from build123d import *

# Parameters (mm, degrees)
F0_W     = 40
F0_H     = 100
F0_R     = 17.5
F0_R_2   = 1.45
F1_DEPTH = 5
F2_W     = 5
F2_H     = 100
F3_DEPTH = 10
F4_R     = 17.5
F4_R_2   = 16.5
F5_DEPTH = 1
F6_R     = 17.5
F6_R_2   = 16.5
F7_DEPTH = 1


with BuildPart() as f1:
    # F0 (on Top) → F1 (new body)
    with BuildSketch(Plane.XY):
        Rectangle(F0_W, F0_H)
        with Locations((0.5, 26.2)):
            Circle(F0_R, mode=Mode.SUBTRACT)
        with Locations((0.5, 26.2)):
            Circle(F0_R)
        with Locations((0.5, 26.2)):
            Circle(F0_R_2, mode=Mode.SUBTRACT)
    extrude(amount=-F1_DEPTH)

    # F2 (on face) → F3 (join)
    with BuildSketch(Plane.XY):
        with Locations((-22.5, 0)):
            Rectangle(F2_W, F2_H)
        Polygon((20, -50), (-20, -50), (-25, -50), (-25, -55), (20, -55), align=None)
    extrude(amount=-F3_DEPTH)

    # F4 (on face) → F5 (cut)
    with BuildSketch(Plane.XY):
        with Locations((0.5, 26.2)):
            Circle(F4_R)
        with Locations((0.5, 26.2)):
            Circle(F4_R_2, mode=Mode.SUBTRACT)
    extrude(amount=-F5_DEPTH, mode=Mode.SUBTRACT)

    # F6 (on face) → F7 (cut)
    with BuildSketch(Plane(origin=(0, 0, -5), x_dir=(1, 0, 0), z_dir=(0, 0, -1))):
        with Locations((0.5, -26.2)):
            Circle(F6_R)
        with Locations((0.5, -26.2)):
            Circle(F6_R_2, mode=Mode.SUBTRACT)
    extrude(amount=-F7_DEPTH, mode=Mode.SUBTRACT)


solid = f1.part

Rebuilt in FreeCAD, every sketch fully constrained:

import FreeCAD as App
import Part
import Sketcher

V = App.Vector

doc = App.newDocument("Part")
body = doc.addObject("PartDesign::Body", "Body")

# Sketch on XY plane
sketch1 = body.newObject("Sketcher::SketchObject", "Sketch")
sketch1.AttachmentSupport = (doc.getObject("XY_Plane"), [""])
sketch1.MapMode = "FlatFace"
sketch1.addGeometry(Part.LineSegment(V(-20, 50, 0), V(-20, -50, 0)), False)
sketch1.addGeometry(Part.LineSegment(V(-20, -50, 0), V(20, -50, 0)), False)
sketch1.addGeometry(Part.LineSegment(V(20, -50, 0), V(20, 50, 0)), False)
sketch1.addGeometry(Part.LineSegment(V(20, 50, 0), V(-20, 50, 0)), False)
sketch1.addGeometry(Part.Circle(V(0.5, 26.2, 0), V(0, 0, 1), 1.45), False)
sketch1.addConstraint(Sketcher.Constraint("Coincident", 0, 2, 1, 1))
sketch1.addConstraint(Sketcher.Constraint("Coincident", 1, 2, 2, 1))
sketch1.addConstraint(Sketcher.Constraint("Coincident", 2, 2, 3, 1))
sketch1.addConstraint(Sketcher.Constraint("Coincident", 3, 2, 0, 1))
sketch1.addConstraint(Sketcher.Constraint("Vertical", 0))
sketch1.addConstraint(Sketcher.Constraint("Horizontal", 1))
sketch1.addConstraint(Sketcher.Constraint("Vertical", 2))
sketch1.addConstraint(Sketcher.Constraint("Horizontal", 3))
sketch1.addConstraint(Sketcher.Constraint("Symmetric", 0, 2, 2, 2, -1, 1))
sketch1.addConstraint(Sketcher.Constraint("Diameter", 4, 2.9))
sketch1.addConstraint(Sketcher.Constraint("DistanceX", 1, 1, 1, 2, 40.0))
sketch1.addConstraint(Sketcher.Constraint("DistanceY", 0, 2, 0, 1, 100.0))
sketch1.addConstraint(Sketcher.Constraint("DistanceX", -1, 1, 4, 3, 0.5))
sketch1.addConstraint(Sketcher.Constraint("DistanceY", -1, 1, 4, 3, 26.2))
pad1 = body.newObject("PartDesign::Pad", "Pad")
pad1.Profile = sketch1
pad1.Length = 5
pad1.Reversed = True

# Sketch on XY plane
sketch2 = body.newObject("Sketcher::SketchObject", "Sketch001")
sketch2.AttachmentSupport = (doc.getObject("XY_Plane"), [""])
sketch2.MapMode = "FlatFace"
sketch2.addGeometry(Part.LineSegment(V(-25, 50, 0), V(-25, -55, 0)), False)
sketch2.addGeometry(Part.LineSegment(V(-25, -55, 0), V(20, -55, 0)), False)
sketch2.addGeometry(Part.LineSegment(V(20, -55, 0), V(20, -50, 0)), False)
sketch2.addGeometry(Part.LineSegment(V(20, -50, 0), V(-20, -50, 0)), False)
sketch2.addGeometry(Part.LineSegment(V(-20, -50, 0), V(-20, 50, 0)), False)
sketch2.addGeometry(Part.LineSegment(V(-20, 50, 0), V(-25, 50, 0)), False)
sketch2.addConstraint(Sketcher.Constraint("Coincident", 0, 2, 1, 1))
sketch2.addConstraint(Sketcher.Constraint("Coincident", 1, 2, 2, 1))
sketch2.addConstraint(Sketcher.Constraint("Coincident", 2, 2, 3, 1))
sketch2.addConstraint(Sketcher.Constraint("Coincident", 3, 2, 4, 1))
sketch2.addConstraint(Sketcher.Constraint("Coincident", 4, 2, 5, 1))
sketch2.addConstraint(Sketcher.Constraint("Coincident", 5, 2, 0, 1))
sketch2.addConstraint(Sketcher.Constraint("Vertical", 0))
sketch2.addConstraint(Sketcher.Constraint("Horizontal", 1))
sketch2.addConstraint(Sketcher.Constraint("Vertical", 2))
sketch2.addConstraint(Sketcher.Constraint("Horizontal", 3))
sketch2.addConstraint(Sketcher.Constraint("Vertical", 4))
sketch2.addConstraint(Sketcher.Constraint("Horizontal", 5))
sketch2.addConstraint(Sketcher.Constraint("Symmetric", 2, 2, 4, 2, -1, 1))
sketch2.addConstraint(Sketcher.Constraint("Equal", 5, 2))
sketch2.addConstraint(Sketcher.Constraint("DistanceX", 1, 1, 1, 2, 45.0))
sketch2.addConstraint(Sketcher.Constraint("DistanceX", 3, 2, 3, 1, 40.0))
sketch2.addConstraint(Sketcher.Constraint("DistanceY", 0, 2, 0, 1, 105.0))
pad2 = body.newObject("PartDesign::Pad", "Pad001")
pad2.Profile = sketch2
pad2.Length = 10
pad2.Reversed = True

# Sketch on XY plane
sketch3 = body.newObject("Sketcher::SketchObject", "Sketch002")
sketch3.AttachmentSupport = (doc.getObject("XY_Plane"), [""])
sketch3.MapMode = "FlatFace"
sketch3.addGeometry(Part.Circle(V(0.5, 26.2, 0), V(0, 0, 1), 17.5), False)
sketch3.addGeometry(Part.Circle(V(0.5, 26.2, 0), V(0, 0, 1), 16.5), False)
sketch3.addConstraint(Sketcher.Constraint("Coincident", 1, 3, 0, 3))
sketch3.addConstraint(Sketcher.Constraint("Diameter", 0, 35.0))
sketch3.addConstraint(Sketcher.Constraint("Diameter", 1, 33.0))
sketch3.addConstraint(Sketcher.Constraint("DistanceX", -1, 1, 0, 3, 0.5))
sketch3.addConstraint(Sketcher.Constraint("DistanceY", -1, 1, 0, 3, 26.2))
pocket1 = body.newObject("PartDesign::Pocket", "Pocket")
pocket1.Profile = sketch3
pocket1.Length = 1

# Sketch on XY plane
sketch4 = body.newObject("Sketcher::SketchObject", "Sketch003")
sketch4.AttachmentSupport = (doc.getObject("XY_Plane"), [""])
sketch4.MapMode = "FlatFace"
sketch4.AttachmentOffset = App.Placement(V(0, 0, -5), App.Rotation())
sketch4.addGeometry(Part.Circle(V(0.5, 26.2, 0), V(0, 0, 1), 17.5), False)
sketch4.addGeometry(Part.Circle(V(0.5, 26.2, 0), V(0, 0, 1), 16.5), False)
sketch4.addConstraint(Sketcher.Constraint("Coincident", 1, 3, 0, 3))
sketch4.addConstraint(Sketcher.Constraint("Diameter", 0, 35.0))
sketch4.addConstraint(Sketcher.Constraint("Diameter", 1, 33.0))
sketch4.addConstraint(Sketcher.Constraint("DistanceX", -1, 1, 0, 3, 0.5))
sketch4.addConstraint(Sketcher.Constraint("DistanceY", -1, 1, 0, 3, 26.2))
pocket2 = body.newObject("PartDesign::Pocket", "Pocket001")
pocket2.Profile = sketch4
pocket2.Length = 1
pocket2.Reversed = True

doc.recompute()
